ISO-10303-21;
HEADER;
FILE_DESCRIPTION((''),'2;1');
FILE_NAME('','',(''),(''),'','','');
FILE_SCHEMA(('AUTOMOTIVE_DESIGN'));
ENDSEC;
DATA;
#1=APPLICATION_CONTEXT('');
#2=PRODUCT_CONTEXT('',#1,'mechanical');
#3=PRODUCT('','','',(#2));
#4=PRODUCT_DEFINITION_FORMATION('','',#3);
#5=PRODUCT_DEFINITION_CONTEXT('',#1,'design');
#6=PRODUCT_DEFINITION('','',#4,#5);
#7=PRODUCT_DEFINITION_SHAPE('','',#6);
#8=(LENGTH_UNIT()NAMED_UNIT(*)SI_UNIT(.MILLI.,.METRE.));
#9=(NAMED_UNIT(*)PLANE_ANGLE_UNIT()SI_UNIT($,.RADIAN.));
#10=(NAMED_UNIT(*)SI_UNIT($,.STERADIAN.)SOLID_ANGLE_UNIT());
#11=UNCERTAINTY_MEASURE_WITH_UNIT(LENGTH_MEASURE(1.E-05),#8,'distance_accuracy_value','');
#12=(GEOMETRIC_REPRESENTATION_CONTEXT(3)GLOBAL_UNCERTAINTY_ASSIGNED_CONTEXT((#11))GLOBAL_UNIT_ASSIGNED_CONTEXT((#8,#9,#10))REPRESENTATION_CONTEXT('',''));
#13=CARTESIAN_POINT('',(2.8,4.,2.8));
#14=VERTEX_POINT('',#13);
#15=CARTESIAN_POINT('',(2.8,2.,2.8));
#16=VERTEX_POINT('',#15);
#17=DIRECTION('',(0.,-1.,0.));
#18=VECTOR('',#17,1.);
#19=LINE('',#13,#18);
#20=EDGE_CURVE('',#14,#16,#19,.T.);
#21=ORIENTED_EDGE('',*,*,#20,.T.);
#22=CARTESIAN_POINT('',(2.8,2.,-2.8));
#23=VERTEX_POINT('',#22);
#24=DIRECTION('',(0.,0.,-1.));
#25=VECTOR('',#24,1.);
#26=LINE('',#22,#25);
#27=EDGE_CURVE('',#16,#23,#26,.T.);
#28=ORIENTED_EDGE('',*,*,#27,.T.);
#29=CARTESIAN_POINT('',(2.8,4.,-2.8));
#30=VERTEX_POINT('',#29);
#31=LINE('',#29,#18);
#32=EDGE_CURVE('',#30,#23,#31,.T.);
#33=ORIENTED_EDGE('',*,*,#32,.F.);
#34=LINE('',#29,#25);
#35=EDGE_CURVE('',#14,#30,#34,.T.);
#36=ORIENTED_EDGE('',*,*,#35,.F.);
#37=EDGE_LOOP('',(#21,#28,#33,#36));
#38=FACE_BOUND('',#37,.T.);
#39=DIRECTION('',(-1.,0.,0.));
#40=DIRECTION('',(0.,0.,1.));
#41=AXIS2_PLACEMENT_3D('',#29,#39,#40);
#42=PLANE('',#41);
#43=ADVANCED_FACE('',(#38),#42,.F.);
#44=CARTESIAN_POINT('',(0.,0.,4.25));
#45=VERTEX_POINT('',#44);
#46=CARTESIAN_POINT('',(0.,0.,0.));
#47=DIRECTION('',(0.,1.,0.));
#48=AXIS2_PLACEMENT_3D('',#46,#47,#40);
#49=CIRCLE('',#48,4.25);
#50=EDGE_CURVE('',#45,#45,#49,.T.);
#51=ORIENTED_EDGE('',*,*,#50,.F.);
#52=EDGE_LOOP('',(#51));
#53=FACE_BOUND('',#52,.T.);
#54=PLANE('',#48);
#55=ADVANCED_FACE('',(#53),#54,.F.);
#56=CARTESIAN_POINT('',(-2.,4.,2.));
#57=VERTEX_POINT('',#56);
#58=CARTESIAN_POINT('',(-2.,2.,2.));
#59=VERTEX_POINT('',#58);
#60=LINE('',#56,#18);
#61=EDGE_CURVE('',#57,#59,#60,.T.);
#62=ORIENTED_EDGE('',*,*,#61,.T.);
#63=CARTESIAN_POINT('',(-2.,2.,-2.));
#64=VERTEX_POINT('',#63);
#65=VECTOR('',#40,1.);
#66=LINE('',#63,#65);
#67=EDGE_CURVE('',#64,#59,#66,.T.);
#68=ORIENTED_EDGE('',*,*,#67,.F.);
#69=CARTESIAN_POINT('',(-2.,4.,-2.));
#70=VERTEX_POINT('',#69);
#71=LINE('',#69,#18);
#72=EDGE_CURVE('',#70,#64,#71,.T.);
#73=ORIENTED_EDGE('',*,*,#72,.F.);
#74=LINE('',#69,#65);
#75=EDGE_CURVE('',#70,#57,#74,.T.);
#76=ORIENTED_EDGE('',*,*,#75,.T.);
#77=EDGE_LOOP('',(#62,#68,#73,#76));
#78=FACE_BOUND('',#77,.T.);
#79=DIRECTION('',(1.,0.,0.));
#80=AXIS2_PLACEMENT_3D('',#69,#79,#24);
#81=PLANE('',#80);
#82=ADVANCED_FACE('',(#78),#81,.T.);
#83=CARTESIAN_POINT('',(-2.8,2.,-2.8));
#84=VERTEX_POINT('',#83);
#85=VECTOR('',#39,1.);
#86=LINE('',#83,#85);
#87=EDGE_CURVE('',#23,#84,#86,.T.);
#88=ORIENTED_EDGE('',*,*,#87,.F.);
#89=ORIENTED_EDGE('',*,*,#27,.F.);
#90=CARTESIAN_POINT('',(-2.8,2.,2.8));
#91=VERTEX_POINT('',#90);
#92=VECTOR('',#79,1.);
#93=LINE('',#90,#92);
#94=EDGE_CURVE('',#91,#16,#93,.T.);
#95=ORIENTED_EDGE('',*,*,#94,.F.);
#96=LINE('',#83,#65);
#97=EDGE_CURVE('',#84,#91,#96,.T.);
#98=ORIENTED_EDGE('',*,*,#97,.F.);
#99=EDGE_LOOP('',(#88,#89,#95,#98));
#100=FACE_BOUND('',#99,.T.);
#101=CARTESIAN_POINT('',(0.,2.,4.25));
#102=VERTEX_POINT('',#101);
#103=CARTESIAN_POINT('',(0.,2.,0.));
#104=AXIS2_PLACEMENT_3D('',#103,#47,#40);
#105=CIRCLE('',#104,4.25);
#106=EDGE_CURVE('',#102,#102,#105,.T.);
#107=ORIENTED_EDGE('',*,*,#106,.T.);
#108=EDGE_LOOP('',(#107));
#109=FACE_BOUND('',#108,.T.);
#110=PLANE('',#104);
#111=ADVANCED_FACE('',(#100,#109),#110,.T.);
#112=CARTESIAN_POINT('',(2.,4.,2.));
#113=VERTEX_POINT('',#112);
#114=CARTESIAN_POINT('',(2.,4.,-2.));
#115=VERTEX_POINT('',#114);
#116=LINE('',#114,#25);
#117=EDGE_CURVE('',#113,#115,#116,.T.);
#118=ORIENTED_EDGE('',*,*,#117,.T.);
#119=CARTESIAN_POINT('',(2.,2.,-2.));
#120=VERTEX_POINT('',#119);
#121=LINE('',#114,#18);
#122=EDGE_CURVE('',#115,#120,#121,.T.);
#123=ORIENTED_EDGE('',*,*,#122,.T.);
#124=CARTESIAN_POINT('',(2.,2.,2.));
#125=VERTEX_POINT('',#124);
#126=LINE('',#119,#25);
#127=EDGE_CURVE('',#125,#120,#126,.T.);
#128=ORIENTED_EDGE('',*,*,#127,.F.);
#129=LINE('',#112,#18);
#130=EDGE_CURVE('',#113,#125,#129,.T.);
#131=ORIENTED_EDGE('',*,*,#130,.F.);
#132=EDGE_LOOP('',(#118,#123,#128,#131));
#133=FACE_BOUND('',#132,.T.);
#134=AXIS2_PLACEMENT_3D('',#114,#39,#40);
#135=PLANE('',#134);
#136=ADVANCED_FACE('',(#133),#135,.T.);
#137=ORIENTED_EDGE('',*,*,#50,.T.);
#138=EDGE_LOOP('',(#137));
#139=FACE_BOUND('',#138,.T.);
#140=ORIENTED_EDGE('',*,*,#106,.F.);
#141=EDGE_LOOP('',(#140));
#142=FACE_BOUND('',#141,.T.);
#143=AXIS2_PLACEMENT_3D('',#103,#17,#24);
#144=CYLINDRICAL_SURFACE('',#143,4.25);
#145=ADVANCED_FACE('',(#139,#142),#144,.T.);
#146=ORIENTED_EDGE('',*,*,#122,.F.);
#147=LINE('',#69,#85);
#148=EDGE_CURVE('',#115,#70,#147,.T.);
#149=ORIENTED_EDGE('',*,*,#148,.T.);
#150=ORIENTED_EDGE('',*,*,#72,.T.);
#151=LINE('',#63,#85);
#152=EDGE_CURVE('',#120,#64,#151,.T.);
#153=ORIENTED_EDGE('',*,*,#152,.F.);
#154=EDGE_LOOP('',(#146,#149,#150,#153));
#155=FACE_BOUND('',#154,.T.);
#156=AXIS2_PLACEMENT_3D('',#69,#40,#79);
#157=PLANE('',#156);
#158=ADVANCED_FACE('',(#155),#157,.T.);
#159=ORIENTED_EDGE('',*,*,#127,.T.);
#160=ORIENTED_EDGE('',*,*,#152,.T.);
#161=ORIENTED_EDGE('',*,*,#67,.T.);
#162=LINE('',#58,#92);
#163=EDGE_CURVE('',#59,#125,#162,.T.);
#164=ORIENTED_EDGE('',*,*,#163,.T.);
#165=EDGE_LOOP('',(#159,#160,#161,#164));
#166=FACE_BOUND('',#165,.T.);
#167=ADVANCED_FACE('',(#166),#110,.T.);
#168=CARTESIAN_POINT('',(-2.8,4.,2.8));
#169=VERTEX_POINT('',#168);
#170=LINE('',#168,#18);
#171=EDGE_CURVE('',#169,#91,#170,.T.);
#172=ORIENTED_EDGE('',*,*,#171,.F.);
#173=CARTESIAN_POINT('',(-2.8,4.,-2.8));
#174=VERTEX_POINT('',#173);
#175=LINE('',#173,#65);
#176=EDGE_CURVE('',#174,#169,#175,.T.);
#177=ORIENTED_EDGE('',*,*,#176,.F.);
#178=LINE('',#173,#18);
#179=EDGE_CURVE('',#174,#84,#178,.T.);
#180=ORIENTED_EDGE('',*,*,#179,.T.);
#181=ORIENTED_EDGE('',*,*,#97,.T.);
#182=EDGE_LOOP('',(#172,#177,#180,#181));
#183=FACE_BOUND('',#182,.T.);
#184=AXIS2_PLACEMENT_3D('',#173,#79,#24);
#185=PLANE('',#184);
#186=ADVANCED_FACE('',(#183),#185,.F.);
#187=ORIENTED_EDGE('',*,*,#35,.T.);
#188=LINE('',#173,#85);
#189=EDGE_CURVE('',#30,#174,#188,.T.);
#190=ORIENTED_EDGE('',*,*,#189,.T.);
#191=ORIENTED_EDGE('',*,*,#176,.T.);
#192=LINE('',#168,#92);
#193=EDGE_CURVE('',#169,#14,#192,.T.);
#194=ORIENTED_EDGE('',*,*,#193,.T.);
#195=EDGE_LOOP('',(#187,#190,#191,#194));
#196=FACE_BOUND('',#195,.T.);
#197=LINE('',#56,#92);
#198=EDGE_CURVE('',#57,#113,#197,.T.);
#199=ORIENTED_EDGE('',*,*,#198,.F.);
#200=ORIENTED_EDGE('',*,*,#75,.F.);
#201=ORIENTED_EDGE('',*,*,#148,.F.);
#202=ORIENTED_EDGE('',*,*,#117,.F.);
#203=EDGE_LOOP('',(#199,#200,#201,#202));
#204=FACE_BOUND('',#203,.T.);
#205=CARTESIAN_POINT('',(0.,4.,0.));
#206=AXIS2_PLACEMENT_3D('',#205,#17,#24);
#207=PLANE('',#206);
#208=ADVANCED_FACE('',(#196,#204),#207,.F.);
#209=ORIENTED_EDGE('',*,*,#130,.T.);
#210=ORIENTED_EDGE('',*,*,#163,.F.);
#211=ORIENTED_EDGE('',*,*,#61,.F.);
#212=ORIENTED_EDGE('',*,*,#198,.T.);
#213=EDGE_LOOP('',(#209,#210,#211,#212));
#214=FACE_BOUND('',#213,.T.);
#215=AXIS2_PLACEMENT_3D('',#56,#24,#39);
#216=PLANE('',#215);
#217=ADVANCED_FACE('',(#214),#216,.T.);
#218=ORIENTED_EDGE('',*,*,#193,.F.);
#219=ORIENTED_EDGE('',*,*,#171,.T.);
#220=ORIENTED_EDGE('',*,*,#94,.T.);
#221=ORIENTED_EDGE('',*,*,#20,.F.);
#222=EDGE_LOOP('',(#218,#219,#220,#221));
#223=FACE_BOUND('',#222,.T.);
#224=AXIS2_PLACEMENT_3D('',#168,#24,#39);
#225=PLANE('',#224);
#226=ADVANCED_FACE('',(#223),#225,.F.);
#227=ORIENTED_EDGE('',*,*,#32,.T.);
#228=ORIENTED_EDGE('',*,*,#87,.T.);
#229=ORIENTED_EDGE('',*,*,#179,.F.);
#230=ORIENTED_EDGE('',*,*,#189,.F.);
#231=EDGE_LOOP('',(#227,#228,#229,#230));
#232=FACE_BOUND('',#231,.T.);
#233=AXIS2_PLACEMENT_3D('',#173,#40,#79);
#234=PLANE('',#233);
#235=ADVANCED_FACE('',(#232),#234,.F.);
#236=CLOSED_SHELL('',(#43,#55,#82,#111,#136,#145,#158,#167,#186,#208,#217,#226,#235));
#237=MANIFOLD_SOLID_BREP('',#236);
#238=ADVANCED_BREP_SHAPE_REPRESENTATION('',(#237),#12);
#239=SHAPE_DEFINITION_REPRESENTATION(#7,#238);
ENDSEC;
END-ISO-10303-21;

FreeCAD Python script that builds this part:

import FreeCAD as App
import Part
import Sketcher

doc = App.newDocument("Part")
body = doc.addObject("PartDesign::Body", "Body")

# Sketch on XZ plane
sketch1 = doc.addObject("Sketcher::SketchObject", "Sketch")
body.addObject(sketch1)
sketch1.AttachmentSupport = (doc.XZ_Plane, [""])
sketch1.MapMode = "FlatFace"
sketch1.addGeometry(Part.Circle(App.Vector(0, 0, 0), App.Vector(0, 0, 1), 4.2), False)
sketch1.addConstraint(Sketcher.Constraint("Coincident", 0, 3, -1, 1))
sketch1.addConstraint(Sketcher.Constraint("Diameter", 0, 8.5))
pad1 = doc.addObject("PartDesign::Pad", "Pad")
body.addObject(pad1)
pad1.Profile = sketch1
pad1.Length = 2
pad1.Reversed = True

# Sketch on XZ plane
sketch2 = doc.addObject("Sketcher::SketchObject", "Sketch001")
body.addObject(sketch2)
sketch2.AttachmentSupport = (doc.XZ_Plane, [""])
sketch2.MapMode = "FlatFace"
sketch2.AttachmentOffset = App.Placement(App.Vector(0, 0, -2), App.Rotation())
sketch2.addGeometry(Part.LineSegment(App.Vector(-2.8, -2.8, 0), App.Vector(-2.8, 2.8, 0)), False)
sketch2.addGeometry(Part.LineSegment(App.Vector(-2.8, 2.8, 0), App.Vector(2.8, 2.8, 0)), False)
sketch2.addGeometry(Part.LineSegment(App.Vector(2.8, 2.8, 0), App.Vector(2.8, -2.8, 0)), False)
sketch2.addGeometry(Part.LineSegment(App.Vector(2.8, -2.8, 0), App.Vector(-2.8, -2.8, 0)), False)
sketch2.addGeometry(Part.LineSegment(App.Vector(2, 2, 0), App.Vector(-2, 2, 0)), False)
sketch2.addGeometry(Part.LineSegment(App.Vector(-2, 2, 0), App.Vector(-2, -2, 0)), False)
sketch2.addGeometry(Part.LineSegment(App.Vector(-2, -2, 0), App.Vector(2, -2, 0)), False)
sketch2.addGeometry(Part.LineSegment(App.Vector(2, -2, 0), App.Vector(2, 2, 0)), False)
sketch2.addConstraint(Sketcher.Constraint("Coincident", 0, 2, 1, 1))
sketch2.addConstraint(Sketcher.Constraint("Coincident", 1, 2, 2, 1))
sketch2.addConstraint(Sketcher.Constraint("Coincident", 2, 2, 3, 1))
sketch2.addConstraint(Sketcher.Constraint("Coincident", 3, 2, 0, 1))
sketch2.addConstraint(Sketcher.Constraint("Coincident", 4, 2, 5, 1))
sketch2.addConstraint(Sketcher.Constraint("Coincident", 5, 2, 6, 1))
sketch2.addConstraint(Sketcher.Constraint("Coincident", 6, 2, 7, 1))
sketch2.addConstraint(Sketcher.Constraint("Coincident", 7, 2, 4, 1))
sketch2.addConstraint(Sketcher.Constraint("Vertical", 0))
sketch2.addConstraint(Sketcher.Constraint("Horizontal", 1))
sketch2.addConstraint(Sketcher.Constraint("Vertical", 2))
sketch2.addConstraint(Sketcher.Constraint("Horizontal", 3))
sketch2.addConstraint(Sketcher.Constraint("Horizontal", 4))
sketch2.addConstraint(Sketcher.Constraint("Vertical", 5))
sketch2.addConstraint(Sketcher.Constraint("Horizontal", 6))
sketch2.addConstraint(Sketcher.Constraint("Vertical", 7))
sketch2.addConstraint(Sketcher.Constraint("Symmetric", 0, 2, 2, 2, -1, 1))
sketch2.addConstraint(Sketcher.Constraint("Symmetric", 4, 2, 6, 2, -1, 1))
sketch2.addConstraint(Sketcher.Constraint("Equal", 3, 0))
sketch2.addConstraint(Sketcher.Constraint("Equal", 6, 5))
sketch2.addConstraint(Sketcher.Constraint("DistanceX", 4, 2, 4, 1, 4.0))
sketch2.addConstraint(Sketcher.Constraint("DistanceX", 1, 1, 1, 2, 5.6))
pad2 = doc.addObject("PartDesign::Pad", "Pad001")
body.addObject(pad2)
pad2.Profile = sketch2
pad2.Length = 2
pad2.Reversed = True

doc.recompute()
